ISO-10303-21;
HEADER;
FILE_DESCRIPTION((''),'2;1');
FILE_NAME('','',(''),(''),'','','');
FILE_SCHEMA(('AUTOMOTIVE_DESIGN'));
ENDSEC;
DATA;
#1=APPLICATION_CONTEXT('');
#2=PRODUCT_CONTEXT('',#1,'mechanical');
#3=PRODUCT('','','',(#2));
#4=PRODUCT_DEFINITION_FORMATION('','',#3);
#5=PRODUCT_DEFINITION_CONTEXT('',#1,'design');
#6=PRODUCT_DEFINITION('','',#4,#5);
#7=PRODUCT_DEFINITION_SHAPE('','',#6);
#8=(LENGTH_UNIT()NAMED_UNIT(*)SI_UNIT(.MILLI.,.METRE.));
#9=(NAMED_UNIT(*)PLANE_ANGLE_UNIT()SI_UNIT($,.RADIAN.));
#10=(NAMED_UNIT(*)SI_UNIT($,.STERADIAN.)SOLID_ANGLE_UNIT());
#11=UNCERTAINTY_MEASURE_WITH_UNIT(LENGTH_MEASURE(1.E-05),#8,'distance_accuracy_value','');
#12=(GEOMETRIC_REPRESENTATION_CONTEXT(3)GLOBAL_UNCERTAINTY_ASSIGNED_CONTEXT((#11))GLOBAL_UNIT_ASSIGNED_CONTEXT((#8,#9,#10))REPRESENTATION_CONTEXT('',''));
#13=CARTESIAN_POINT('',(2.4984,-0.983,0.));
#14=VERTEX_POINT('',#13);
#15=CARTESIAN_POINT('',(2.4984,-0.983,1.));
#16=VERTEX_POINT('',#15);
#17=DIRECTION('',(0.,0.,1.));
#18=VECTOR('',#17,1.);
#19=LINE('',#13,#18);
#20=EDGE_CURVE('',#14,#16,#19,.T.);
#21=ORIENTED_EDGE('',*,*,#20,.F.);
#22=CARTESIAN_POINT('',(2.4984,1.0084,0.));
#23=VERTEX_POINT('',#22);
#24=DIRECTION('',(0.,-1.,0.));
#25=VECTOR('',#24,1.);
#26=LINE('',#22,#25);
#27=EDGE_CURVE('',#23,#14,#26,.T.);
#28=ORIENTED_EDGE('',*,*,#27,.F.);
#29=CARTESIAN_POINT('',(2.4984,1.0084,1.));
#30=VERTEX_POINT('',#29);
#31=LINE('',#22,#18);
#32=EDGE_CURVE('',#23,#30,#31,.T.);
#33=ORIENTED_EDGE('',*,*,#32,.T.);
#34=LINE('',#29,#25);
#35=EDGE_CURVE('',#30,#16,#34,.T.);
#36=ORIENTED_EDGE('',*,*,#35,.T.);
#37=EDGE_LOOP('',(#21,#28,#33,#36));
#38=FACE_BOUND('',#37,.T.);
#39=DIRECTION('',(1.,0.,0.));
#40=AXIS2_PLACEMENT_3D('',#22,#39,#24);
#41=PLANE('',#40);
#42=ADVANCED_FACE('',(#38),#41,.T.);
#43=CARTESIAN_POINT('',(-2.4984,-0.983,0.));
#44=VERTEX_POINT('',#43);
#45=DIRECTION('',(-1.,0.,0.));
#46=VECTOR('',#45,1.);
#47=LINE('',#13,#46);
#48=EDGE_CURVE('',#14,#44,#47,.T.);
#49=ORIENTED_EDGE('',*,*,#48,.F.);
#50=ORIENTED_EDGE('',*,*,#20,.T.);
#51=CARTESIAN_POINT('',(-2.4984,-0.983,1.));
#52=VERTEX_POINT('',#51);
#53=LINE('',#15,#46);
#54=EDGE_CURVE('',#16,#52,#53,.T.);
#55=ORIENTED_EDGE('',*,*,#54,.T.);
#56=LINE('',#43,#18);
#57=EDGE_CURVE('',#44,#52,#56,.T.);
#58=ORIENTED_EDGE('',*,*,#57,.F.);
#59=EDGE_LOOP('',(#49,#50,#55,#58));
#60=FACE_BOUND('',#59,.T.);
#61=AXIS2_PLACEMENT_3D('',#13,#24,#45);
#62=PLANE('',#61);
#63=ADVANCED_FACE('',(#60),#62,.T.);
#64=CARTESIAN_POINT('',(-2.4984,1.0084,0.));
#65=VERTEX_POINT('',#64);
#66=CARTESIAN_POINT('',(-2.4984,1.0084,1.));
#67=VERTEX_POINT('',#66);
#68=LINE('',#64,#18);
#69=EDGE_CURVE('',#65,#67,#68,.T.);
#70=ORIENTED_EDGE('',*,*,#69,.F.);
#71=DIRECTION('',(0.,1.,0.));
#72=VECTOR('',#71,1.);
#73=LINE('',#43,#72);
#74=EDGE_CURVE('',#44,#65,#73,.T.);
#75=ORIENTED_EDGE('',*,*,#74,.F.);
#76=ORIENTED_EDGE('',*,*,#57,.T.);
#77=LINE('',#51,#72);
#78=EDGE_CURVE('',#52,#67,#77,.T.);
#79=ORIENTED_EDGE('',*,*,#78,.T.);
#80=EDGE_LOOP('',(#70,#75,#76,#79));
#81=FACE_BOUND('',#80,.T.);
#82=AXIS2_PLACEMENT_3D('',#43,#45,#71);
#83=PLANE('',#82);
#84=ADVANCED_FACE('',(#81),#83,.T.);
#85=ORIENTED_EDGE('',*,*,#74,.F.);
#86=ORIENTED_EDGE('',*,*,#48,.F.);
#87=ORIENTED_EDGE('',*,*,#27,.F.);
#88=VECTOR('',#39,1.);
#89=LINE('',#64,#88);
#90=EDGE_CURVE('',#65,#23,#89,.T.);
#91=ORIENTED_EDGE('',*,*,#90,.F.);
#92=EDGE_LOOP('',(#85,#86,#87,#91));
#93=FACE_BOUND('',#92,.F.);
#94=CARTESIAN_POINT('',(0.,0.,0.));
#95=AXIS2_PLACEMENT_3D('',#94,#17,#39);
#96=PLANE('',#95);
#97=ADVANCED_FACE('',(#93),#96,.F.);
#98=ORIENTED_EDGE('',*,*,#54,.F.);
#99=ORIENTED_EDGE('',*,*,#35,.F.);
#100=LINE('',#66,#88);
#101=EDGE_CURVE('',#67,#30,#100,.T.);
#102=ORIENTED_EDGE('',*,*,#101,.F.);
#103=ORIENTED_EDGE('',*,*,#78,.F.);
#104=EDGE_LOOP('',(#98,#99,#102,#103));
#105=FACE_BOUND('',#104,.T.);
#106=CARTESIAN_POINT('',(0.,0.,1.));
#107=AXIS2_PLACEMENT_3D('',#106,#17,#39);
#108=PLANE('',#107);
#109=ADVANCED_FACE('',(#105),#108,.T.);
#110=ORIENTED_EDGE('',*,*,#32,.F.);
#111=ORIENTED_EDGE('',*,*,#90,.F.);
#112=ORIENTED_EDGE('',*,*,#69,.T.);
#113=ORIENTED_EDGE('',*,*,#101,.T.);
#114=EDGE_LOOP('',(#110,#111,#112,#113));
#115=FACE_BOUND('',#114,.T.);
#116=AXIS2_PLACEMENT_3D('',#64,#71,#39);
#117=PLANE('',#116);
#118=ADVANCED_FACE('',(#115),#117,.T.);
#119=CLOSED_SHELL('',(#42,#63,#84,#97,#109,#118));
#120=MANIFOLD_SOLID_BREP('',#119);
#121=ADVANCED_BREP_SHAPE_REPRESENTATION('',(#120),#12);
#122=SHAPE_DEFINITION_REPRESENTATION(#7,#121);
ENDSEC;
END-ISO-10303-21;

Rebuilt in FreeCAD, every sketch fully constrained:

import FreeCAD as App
import Part
import Sketcher
Q = App.Units.Quantity

doc = App.newDocument("Part")
params = doc.addObject("Spreadsheet::Sheet", "Params")
for row, (alias, value) in enumerate([
    ("pad1_length", "1 mm"),
], start=1):
    params.set(f"A{row}", alias)
    params.set(f"B{row}", "=" + value)
    params.setAlias(f"B{row}", alias)

body = doc.addObject("PartDesign::Body", "Body")

# Sketch on XY plane
sketch1 = body.newObject("Sketcher::SketchObject", "Sketch")
sketch1.AttachmentSupport = (doc.getObject("XY_Plane"), [""])
sketch1.MapMode = "FlatFace"
sketch1.addGeometry([
    Part.LineSegment(App.Vector(2.5, 1, 0), App.Vector(-2.5, 1, 0)),
    Part.LineSegment(App.Vector(-2.5, 1, 0), App.Vector(-2.5, -1, 0)),
    Part.LineSegment(App.Vector(-2.5, -1, 0), App.Vector(2.5, -1, 0)),
    Part.LineSegment(App.Vector(2.5, -1, 0), App.Vector(2.5, 1, 0)),
], False)
sketch1.addConstraint([
    Sketcher.Constraint("Coincident", 0, 2, 1, 1),
    Sketcher.Constraint("Coincident", 1, 2, 2, 1),
    Sketcher.Constraint("Coincident", 2, 2, 3, 1),
    Sketcher.Constraint("Coincident", 3, 2, 0, 1),
    Sketcher.Constraint("Horizontal", 0),
    Sketcher.Constraint("Vertical", 1),
    Sketcher.Constraint("Horizontal", 2),
    Sketcher.Constraint("Vertical", 3),
    Sketcher.Constraint("DistanceX", 0, 2, 0, 1, Q("4.9968 mm")),
    Sketcher.Constraint("DistanceY", 1, 2, 1, 1, Q("1.9914 mm")),
    Sketcher.Constraint("DistanceY", 1, 2, -1, 1, Q("0.983 mm")),
    Sketcher.Constraint("DistanceX", 0, 2, -1, 1, Q("2.4984 mm")),
])
pad1 = body.newObject("PartDesign::Pad", "Pad")
pad1.Profile = sketch1
pad1.setExpression("Length", "Params.pad1_length")

doc.recompute()
